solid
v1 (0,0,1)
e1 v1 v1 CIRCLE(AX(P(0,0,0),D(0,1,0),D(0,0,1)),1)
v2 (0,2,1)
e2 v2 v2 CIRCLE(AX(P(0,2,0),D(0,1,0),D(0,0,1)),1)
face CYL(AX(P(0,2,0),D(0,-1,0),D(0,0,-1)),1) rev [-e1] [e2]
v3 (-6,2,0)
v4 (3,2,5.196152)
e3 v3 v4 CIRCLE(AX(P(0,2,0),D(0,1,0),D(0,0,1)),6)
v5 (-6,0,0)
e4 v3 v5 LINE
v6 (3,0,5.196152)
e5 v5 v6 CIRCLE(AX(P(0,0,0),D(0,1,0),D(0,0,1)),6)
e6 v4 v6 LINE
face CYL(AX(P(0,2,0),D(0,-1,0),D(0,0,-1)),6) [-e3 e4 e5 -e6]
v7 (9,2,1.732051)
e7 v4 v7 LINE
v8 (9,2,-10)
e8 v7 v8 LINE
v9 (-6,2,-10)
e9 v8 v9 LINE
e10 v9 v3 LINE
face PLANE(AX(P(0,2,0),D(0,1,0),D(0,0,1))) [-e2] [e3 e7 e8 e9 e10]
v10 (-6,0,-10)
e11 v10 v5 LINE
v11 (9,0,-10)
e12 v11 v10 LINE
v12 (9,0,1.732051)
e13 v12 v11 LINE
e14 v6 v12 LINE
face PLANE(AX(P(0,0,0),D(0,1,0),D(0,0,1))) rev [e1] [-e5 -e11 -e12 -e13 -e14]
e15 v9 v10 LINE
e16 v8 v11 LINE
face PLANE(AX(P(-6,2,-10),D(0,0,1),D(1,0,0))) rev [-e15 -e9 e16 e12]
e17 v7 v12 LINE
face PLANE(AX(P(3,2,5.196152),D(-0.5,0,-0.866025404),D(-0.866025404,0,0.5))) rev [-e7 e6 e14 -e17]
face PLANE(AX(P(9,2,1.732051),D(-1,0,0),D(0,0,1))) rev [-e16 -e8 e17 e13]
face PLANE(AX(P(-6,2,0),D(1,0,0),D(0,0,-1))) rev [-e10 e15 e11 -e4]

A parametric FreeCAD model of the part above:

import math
import FreeCAD as App
import Part
import Sketcher
Q = App.Units.Quantity

doc = App.newDocument("Part")
params = doc.addObject("Spreadsheet::Sheet", "Params")
for row, (alias, value) in enumerate([
    ("sketch1_diameter", "2 mm"),
    ("sketch1_radius", "6 mm"),
    ("sketch1_width", "15 mm"),
    ("sketch1_height", "10 mm"),
    ("pad1_length", "2 mm"),
], start=1):
    params.set(f"A{row}", alias)
    params.set(f"B{row}", "=" + value)
    params.setAlias(f"B{row}", alias)

body = doc.addObject("PartDesign::Body", "Body")

# Sketch on XZ plane
sketch1 = doc.addObject("Sketcher::SketchObject", "Sketch")
body.addObject(sketch1)
sketch1.AttachmentSupport = (doc.XZ_Plane, [""])
sketch1.MapMode = "FlatFace"
sketch1.addGeometry(Part.LineSegment(App.Vector(-6, -10, 0), App.Vector(-6, 0, 0)), False)
sketch1.addGeometry(Part.ArcOfCircle(Part.Circle(App.Vector(0, 0, 0), App.Vector(0, 0, 1), 6), math.radians(60), math.radians(180)), False)
sketch1.addGeometry(Part.LineSegment(App.Vector(3, 5.2, 0), App.Vector(9, 1.7, 0)), False)
sketch1.addGeometry(Part.LineSegment(App.Vector(9, 1.7, 0), App.Vector(9, -10, 0)), False)
sketch1.addGeometry(Part.LineSegment(App.Vector(9, -10, 0), App.Vector(-6, -10, 0)), False)
sketch1.addGeometry(Part.Circle(App.Vector(0, 0, 0), App.Vector(0, 0, 1), 1), False)
sketch1.addConstraint(Sketcher.Constraint("Tangent", 0, 2, 1, 2))
sketch1.addConstraint(Sketcher.Constraint("Tangent", 1, 1, 2, 1))
sketch1.addConstraint(Sketcher.Constraint("Coincident", 2, 2, 3, 1))
sketch1.addConstraint(Sketcher.Constraint("Coincident", 3, 2, 4, 1))
sketch1.addConstraint(Sketcher.Constraint("Coincident", 4, 2, 0, 1))
sketch1.addConstraint(Sketcher.Constraint("Vertical", 0))
sketch1.addConstraint(Sketcher.Constraint("Vertical", 3))
sketch1.addConstraint(Sketcher.Constraint("Horizontal", 4))
sketch1.addConstraint(Sketcher.Constraint("Coincident", 1, 3, -1, 1))
sketch1.addConstraint(Sketcher.Constraint("Coincident", 5, 3, -1, 1))
sketch1.addConstraint(Sketcher.Constraint("Diameter", 5, Q("2 mm")))
sketch1.addConstraint(Sketcher.Constraint("Radius", 1, Q("6 mm")))
sketch1.addConstraint(Sketcher.Constraint("DistanceX", 4, 2, 4, 1, Q("15 mm")))
sketch1.addConstraint(Sketcher.Constraint("DistanceY", 0, 1, 0, 2, Q("10 mm")))
sketch1.addConstraint(Sketcher.Constraint("Angle", 2, Q("-30 deg")))
sketch1.setExpression("Constraints[10]", "Params.sketch1_diameter")
sketch1.setExpression("Constraints[11]", "Params.sketch1_radius")
sketch1.setExpression("Constraints[12]", "Params.sketch1_width")
sketch1.setExpression("Constraints[13]", "Params.sketch1_height")
pad1 = doc.addObject("PartDesign::Pad", "Pad")
body.addObject(pad1)
pad1.Profile = sketch1
pad1.setExpression("Length", "Params.pad1_length")
pad1.Reversed = True

doc.recompute()
